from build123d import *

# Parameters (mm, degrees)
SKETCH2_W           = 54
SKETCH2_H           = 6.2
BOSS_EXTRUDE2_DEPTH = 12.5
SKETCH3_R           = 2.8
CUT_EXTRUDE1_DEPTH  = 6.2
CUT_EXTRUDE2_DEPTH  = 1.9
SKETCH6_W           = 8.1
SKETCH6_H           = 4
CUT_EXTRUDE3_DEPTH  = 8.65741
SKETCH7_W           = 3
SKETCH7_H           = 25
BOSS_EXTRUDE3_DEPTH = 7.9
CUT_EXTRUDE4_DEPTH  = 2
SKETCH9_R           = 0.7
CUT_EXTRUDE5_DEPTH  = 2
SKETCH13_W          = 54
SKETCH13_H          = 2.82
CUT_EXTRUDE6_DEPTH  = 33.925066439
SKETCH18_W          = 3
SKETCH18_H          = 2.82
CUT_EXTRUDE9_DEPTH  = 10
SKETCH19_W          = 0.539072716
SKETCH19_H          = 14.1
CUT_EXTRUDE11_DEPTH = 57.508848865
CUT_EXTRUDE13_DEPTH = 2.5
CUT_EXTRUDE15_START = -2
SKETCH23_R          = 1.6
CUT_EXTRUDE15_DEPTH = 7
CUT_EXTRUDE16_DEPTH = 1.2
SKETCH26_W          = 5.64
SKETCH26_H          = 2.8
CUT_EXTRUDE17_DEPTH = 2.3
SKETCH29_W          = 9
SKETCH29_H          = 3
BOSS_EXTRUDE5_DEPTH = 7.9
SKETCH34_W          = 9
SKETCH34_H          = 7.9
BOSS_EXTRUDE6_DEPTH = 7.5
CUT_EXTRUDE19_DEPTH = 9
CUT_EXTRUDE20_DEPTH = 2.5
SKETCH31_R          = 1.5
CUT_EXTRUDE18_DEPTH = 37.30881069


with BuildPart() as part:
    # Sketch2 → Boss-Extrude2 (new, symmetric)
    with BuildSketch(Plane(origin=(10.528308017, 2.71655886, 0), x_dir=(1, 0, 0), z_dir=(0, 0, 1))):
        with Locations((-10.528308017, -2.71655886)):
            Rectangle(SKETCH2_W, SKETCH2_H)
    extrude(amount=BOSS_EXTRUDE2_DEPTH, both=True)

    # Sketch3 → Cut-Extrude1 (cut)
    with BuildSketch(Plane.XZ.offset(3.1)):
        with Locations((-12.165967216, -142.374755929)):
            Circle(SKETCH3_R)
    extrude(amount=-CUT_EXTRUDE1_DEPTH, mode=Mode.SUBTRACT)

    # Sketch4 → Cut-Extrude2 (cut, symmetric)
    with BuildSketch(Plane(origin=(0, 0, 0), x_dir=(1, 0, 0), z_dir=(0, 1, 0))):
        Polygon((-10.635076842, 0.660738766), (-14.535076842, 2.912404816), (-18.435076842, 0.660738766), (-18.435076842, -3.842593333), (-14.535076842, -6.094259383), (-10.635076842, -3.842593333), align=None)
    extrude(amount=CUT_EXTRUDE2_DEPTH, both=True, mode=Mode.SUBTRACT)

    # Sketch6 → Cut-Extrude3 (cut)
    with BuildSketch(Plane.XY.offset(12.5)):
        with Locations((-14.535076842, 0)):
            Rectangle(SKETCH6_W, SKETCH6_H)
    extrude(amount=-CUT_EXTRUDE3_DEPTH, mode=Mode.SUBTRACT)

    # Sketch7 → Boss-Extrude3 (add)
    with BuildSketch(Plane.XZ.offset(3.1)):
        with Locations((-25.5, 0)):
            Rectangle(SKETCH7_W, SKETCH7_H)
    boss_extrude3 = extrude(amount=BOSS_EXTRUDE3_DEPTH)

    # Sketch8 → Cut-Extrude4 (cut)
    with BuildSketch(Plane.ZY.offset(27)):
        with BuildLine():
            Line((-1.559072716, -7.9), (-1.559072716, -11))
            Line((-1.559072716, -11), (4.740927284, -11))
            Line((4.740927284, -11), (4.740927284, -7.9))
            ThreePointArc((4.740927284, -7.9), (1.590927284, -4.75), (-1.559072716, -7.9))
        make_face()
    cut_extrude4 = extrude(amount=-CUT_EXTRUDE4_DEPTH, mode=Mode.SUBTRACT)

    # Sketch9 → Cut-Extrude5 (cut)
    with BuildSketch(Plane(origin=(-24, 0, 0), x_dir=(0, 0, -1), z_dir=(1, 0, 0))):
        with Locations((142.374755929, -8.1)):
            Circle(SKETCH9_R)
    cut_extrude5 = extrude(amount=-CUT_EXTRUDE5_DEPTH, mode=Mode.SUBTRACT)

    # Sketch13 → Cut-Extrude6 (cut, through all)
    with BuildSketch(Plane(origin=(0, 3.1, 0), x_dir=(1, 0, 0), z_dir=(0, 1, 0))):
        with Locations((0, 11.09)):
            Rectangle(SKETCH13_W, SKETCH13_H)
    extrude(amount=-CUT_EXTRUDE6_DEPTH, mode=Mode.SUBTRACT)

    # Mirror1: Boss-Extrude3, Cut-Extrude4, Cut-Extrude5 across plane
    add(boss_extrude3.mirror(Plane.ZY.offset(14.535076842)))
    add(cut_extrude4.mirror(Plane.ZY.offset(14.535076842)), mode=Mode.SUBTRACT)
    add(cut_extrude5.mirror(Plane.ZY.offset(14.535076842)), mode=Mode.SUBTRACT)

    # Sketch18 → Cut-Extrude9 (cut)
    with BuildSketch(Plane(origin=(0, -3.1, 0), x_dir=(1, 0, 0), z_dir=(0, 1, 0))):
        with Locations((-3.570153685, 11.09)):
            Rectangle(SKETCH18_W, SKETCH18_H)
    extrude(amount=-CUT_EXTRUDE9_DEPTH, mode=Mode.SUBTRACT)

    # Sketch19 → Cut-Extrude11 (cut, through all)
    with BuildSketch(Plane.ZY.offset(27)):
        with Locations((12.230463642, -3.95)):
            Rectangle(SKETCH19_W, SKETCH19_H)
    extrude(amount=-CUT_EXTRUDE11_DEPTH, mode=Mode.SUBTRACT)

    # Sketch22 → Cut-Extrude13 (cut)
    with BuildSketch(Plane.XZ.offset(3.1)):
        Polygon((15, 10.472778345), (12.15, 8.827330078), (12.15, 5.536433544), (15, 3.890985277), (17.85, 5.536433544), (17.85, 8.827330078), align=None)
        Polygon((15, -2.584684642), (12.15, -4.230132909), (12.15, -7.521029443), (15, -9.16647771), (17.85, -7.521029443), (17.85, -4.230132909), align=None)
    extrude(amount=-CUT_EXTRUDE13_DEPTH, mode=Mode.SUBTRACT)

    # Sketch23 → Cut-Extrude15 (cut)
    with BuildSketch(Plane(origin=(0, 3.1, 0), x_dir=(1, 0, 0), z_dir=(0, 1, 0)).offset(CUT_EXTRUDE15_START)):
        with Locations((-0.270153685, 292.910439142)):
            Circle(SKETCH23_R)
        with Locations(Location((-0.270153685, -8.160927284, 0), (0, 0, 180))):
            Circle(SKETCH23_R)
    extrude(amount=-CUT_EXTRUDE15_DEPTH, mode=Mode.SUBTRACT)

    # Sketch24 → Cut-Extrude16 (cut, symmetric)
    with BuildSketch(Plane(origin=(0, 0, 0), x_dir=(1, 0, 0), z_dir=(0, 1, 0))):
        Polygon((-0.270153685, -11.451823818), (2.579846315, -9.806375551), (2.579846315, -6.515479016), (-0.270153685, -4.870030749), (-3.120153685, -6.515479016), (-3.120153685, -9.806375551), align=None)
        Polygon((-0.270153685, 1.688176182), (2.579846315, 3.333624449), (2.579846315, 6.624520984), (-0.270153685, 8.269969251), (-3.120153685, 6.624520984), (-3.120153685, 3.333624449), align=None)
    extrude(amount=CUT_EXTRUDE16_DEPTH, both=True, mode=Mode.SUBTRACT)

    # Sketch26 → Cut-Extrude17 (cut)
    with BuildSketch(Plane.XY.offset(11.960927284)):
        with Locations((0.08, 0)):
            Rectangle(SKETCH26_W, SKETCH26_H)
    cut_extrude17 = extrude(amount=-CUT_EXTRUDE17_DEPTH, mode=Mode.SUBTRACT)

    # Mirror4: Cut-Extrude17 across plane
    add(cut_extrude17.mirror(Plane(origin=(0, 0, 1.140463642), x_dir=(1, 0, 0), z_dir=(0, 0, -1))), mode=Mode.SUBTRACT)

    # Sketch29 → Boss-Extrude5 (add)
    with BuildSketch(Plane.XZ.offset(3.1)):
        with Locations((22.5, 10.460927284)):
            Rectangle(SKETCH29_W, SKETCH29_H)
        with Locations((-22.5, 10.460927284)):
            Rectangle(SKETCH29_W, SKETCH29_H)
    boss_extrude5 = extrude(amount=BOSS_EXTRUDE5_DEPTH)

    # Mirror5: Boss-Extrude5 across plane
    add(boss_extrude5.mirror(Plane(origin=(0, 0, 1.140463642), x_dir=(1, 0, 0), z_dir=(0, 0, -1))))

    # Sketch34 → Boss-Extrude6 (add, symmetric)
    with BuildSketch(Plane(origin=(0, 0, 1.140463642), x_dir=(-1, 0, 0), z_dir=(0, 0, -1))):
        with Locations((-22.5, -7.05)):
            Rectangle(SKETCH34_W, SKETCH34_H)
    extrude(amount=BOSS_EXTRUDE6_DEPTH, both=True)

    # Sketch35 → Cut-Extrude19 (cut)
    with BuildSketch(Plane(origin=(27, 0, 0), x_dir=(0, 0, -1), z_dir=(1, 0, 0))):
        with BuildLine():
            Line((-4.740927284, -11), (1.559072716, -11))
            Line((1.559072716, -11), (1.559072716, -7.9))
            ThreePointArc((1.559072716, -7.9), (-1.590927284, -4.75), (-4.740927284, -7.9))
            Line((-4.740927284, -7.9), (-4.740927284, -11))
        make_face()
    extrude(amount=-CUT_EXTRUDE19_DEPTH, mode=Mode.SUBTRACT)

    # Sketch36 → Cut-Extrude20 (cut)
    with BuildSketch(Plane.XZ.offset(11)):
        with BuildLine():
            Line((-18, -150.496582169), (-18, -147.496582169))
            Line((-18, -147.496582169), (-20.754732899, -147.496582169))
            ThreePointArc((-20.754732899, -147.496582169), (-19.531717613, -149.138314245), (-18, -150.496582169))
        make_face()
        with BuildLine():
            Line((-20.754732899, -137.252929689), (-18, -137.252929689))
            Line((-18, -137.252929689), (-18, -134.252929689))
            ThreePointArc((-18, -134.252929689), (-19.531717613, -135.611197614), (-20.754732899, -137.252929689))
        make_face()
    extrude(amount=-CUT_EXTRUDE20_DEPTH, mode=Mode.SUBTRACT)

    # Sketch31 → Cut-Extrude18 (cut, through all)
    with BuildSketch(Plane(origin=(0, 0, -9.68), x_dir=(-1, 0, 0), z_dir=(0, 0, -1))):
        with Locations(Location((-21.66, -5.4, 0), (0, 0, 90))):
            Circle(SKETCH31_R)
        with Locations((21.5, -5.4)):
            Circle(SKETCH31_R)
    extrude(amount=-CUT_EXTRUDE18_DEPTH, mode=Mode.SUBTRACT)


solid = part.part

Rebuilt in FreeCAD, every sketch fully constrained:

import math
import FreeCAD as App
import Part
import Sketcher

V = App.Vector
Q = App.Units.Quantity


def add_polygon(sketch, points):
    """Adds a closed chain of lines whose ends are joined by coincident constraints."""
    first, n = sketch.GeometryCount, len(points)
    for a, b in zip(points, points[1:] + points[:1]):
        sketch.addGeometry(Part.LineSegment(App.Vector(*a, 0), App.Vector(*b, 0)), False)
    for i in range(n):
        sketch.addConstraint(Sketcher.Constraint("Coincident", first + i, 2, first + (i + 1) % n, 1))

doc = App.newDocument("Part")
body = doc.addObject("PartDesign::Body", "Body")

# Sketch on XY plane
sketch1 = body.newObject("Sketcher::SketchObject", "Sketch")
sketch1.AttachmentSupport = (doc.getObject("XY_Plane"), [""])
sketch1.MapMode = "FlatFace"
add_polygon(sketch1, [(-27, 3), (-27, -3), (27, -3), (27, 3)])  # lines 0-3
sketch1.addConstraint([
    Sketcher.Constraint("Vertical", 0),
    Sketcher.Constraint("Horizontal", 1),
    Sketcher.Constraint("Vertical", 2),
    Sketcher.Constraint("Horizontal", 3),
    Sketcher.Constraint("Symmetric", 0, 2, 2, 2, -1, 1),
    Sketcher.Constraint("DistanceX", 1, 1, 1, 2, 54.0),
    Sketcher.Constraint("DistanceY", 0, 2, 0, 1, 6.2),
])
pad1 = body.newObject("PartDesign::Pad", "Pad")
pad1.Profile = sketch1
pad1.Length = 25
pad1.Midplane = True

# Sketch on XZ plane
sketch2 = body.newObject("Sketcher::SketchObject", "Sketch001")
sketch2.AttachmentSupport = (doc.getObject("XZ_Plane"), [""])
sketch2.MapMode = "FlatFace"
sketch2.AttachmentOffset = App.Placement(V(0, 0, 3.1), App.Rotation())
sketch2.addGeometry(Part.Circle(V(-12.2, -142.4, 0), V(0, 0, 1), 2.8), False)
sketch2.addConstraint([
    Sketcher.Constraint("Diameter", 0, 5.6),
    Sketcher.Constraint("DistanceX", 0, 3, -1, 1, 12.165967),
    Sketcher.Constraint("DistanceY", 0, 3, -1, 1, 142.374756),
])
pocket1 = body.newObject("PartDesign::Pocket", "Pocket")
pocket1.Profile = sketch2
pocket1.Length = 6.2

# Sketch on XZ plane
sketch3 = body.newObject("Sketcher::SketchObject", "Sketch002")
sketch3.AttachmentSupport = (doc.getObject("XZ_Plane"), [""])
sketch3.MapMode = "FlatFace"
add_polygon(sketch3, [(-10.6, -0.7), (-14.5, -2.9), (-18.4, -0.7), (-18.4, 3.8), (-14.5, 6.1), (-10.6, 3.8)])  # lines 0-5
sketch3.addConstraint([
    Sketcher.Constraint("Vertical", 2),
    Sketcher.Constraint("Vertical", 5),
    Sketcher.Constraint("Parallel", 0, 3),
    Sketcher.Constraint("Parallel", 1, 4),
    Sketcher.Constraint("Horizontal", 2, 2, 4, 2),
    Sketcher.Constraint("Horizontal", 1, 2, 5, 2),
    Sketcher.Constraint("Vertical", 0, 2, 3, 2),
    Sketcher.Constraint("Angle", 0, Q("-150 deg")),
    Sketcher.Constraint("DistanceX", 1, 2, 0, 2, 3.9),
    Sketcher.Constraint("DistanceY", 0, 2, 2, 2, 6.754998),
    Sketcher.Constraint("DistanceY", 1, 2, -1, 1, 0.660739),
    Sketcher.Constraint("DistanceX", 0, 2, -1, 1, 14.535077),
])
pocket2 = body.newObject("PartDesign::Pocket", "Pocket001")
pocket2.Profile = sketch3
pocket2.Length = 3.8
pocket2.Midplane = True

# Sketch on XY plane
sketch4 = body.newObject("Sketcher::SketchObject", "Sketch003")
sketch4.AttachmentSupport = (doc.getObject("XY_Plane"), [""])
sketch4.MapMode = "FlatFace"
sketch4.AttachmentOffset = App.Placement(V(0, 0, 12.5), App.Rotation())
add_polygon(sketch4, [(-18.6, 2), (-18.6, -2), (-10.5, -2), (-10.5, 2)])  # lines 0-3
sketch4.addConstraint([
    Sketcher.Constraint("Vertical", 0),
    Sketcher.Constraint("Horizontal", 1),
    Sketcher.Constraint("Vertical", 2),
    Sketcher.Constraint("Horizontal", 3),
    Sketcher.Constraint("DistanceY", 0, 2, 0, 1, 4.0),
    Sketcher.Constraint("DistanceX", 1, 1, 1, 2, 8.1),
    Sketcher.Constraint("DistanceY", 0, 2, -1, 1, 2.0),
    Sketcher.Constraint("DistanceX", 0, 2, -1, 1, 18.585077),
])
pocket3 = body.newObject("PartDesign::Pocket", "Pocket002")
pocket3.Profile = sketch4
pocket3.Length = 8.65741

# Sketch on XZ plane
sketch5 = body.newObject("Sketcher::SketchObject", "Sketch004")
sketch5.AttachmentSupport = (doc.getObject("XZ_Plane"), [""])
sketch5.MapMode = "FlatFace"
sketch5.AttachmentOffset = App.Placement(V(0, 0, 3.1), App.Rotation())
add_polygon(sketch5, [(-27, 12.5), (-27, -12.5), (-24, -12.5), (-24, 12.5)])  # lines 0-3
sketch5.addConstraint([
    Sketcher.Constraint("Vertical", 0),
    Sketcher.Constraint("Horizontal", 1),
    Sketcher.Constraint("Vertical", 2),
    Sketcher.Constraint("Horizontal", 3),
    Sketcher.Constraint("DistanceX", 1, 1, 1, 2, 3.0),
    Sketcher.Constraint("DistanceY", 0, 2, 0, 1, 25.0),
    Sketcher.Constraint("DistanceX", 0, 2, -1, 1, 27.0),
    Sketcher.Constraint("DistanceY", 0, 2, -1, 1, 12.5),
])
pad2 = body.newObject("PartDesign::Pad", "Pad001")
pad2.Profile = sketch5
pad2.Length = 7.9

# Sketch on YZ plane
sketch6 = body.newObject("Sketcher::SketchObject", "Sketch005")
sketch6.AttachmentSupport = (doc.getObject("YZ_Plane"), [""])
sketch6.MapMode = "FlatFace"
sketch6.AttachmentOffset = App.Placement(V(0, 0, -27), App.Rotation())
sketch6.addGeometry([
    Part.LineSegment(V(-7.9, -1.6, 0), V(-11, -1.6, 0)),
    Part.LineSegment(V(-11, -1.6, 0), V(-11, 4.7, 0)),
    Part.LineSegment(V(-11, 4.7, 0), V(-7.9, 4.7, 0)),
    Part.ArcOfCircle(Part.Circle(V(-7.9, 1.6, 0), V(0, 0, 1), 3.1), math.radians(-90), math.radians(90)),
], False)
sketch6.addConstraint([
    Sketcher.Constraint("Coincident", 0, 2, 1, 1),
    Sketcher.Constraint("Coincident", 1, 2, 2, 1),
    Sketcher.Constraint("Tangent", 2, 2, 3, 2),
    Sketcher.Constraint("Tangent", 3, 1, 0, 1),
    Sketcher.Constraint("Horizontal", 0),
    Sketcher.Constraint("Vertical", 1),
    Sketcher.Constraint("Horizontal", 2),
    Sketcher.Constraint("Radius", 3, 3.15),
    Sketcher.Constraint("DistanceX", 0, 2, 0, 1, 3.1),
    Sketcher.Constraint("DistanceX", 0, 2, -1, 1, 11.0),
    Sketcher.Constraint("DistanceY", -1, 1, 3, 3, 1.590927),
])
pocket4 = body.newObject("PartDesign::Pocket", "Pocket003")
pocket4.Profile = sketch6
pocket4.Length = 2
pocket4.Reversed = True

# Sketch on YZ plane
sketch7 = body.newObject("Sketcher::SketchObject", "Sketch006")
sketch7.AttachmentSupport = (doc.getObject("YZ_Plane"), [""])
sketch7.MapMode = "FlatFace"
sketch7.AttachmentOffset = App.Placement(V(0, 0, -24), App.Rotation())
sketch7.addGeometry(Part.Circle(V(-8.1, -142.4, 0), V(0, 0, 1), 0.7), False)
sketch7.addConstraint([
    Sketcher.Constraint("Diameter", 0, 1.4),
    Sketcher.Constraint("DistanceX", 0, 3, -1, 1, 8.1),
    Sketcher.Constraint("DistanceY", 0, 3, -1, 1, 142.374756),
])
pocket5 = body.newObject("PartDesign::Pocket", "Pocket004")
pocket5.Profile = sketch7
pocket5.Length = 2

# Sketch on XZ plane
sketch8 = body.newObject("Sketcher::SketchObject", "Sketch007")
sketch8.AttachmentSupport = (doc.getObject("XZ_Plane"), [""])
sketch8.MapMode = "FlatFace"
sketch8.AttachmentOffset = App.Placement(V(0, 0, -3.1), App.Rotation())
add_polygon(sketch8, [(-27, -12.5), (-27, -9.7), (27, -9.7), (27, -12.5)])  # lines 0-3
sketch8.addConstraint([
    Sketcher.Constraint("Vertical", 0),
    Sketcher.Constraint("Horizontal", 1),
    Sketcher.Constraint("Vertical", 2),
    Sketcher.Constraint("Horizontal", 3),
    Sketcher.Constraint("DistanceX", 1, 1, 1, 2, 54.0),
    Sketcher.Constraint("DistanceX", 0, 2, -1, 1, 27.0),
    Sketcher.Constraint("DistanceY", 0, 1, 0, 2, 2.82),
    Sketcher.Constraint("DistanceY", 2, 2, -1, 1, 12.5),
])
pocket6 = body.newObject("PartDesign::Pocket", "Pocket005")
pocket6.Profile = sketch8
pocket6.Type = "ThroughAll"
pocket6.Reversed = True
doc.recompute()

datumplane = body.newObject("PartDesign::Plane", "DatumPlane")
datumplane.AttachmentSupport = (doc.getObject("YZ_Plane"), [""])
datumplane.MapMode = "FlatFace"
datumplane.AttachmentOffset = App.Placement(V(0, 0, -14.535077), App.Rotation())
mirrored = body.newObject("PartDesign::Mirrored", "Mirrored")
mirrored.Originals = [pad2, pocket4, pocket5]
mirrored.MirrorPlane = (datumplane, [""])
body.Tip = mirrored

# Sketch on XZ plane
sketch9 = body.newObject("Sketcher::SketchObject", "Sketch008")
sketch9.AttachmentSupport = (doc.getObject("XZ_Plane"), [""])
sketch9.MapMode = "FlatFace"
sketch9.AttachmentOffset = App.Placement(V(0, 0, 3.1), App.Rotation())
add_polygon(sketch9, [(-5.1, -12.5), (-5.1, -9.7), (-2.1, -9.7), (-2.1, -12.5)])  # lines 0-3
sketch9.addConstraint([
    Sketcher.Constraint("Vertical", 0),
    Sketcher.Constraint("Horizontal", 1),
    Sketcher.Constraint("Vertical", 2),
    Sketcher.Constraint("Horizontal", 3),
    Sketcher.Constraint("DistanceX", 1, 1, 1, 2, 3.0),
    Sketcher.Constraint("DistanceY", 0, 1, 0, 2, 2.82),
    Sketcher.Constraint("DistanceY", 2, 2, -1, 1, 12.5),
    Sketcher.Constraint("DistanceX", 0, 2, -1, 1, 5.070154),
])
pocket7 = body.newObject("PartDesign::Pocket", "Pocket006")
pocket7.Profile = sketch9
pocket7.Length = 10
pocket7.Reversed = True

# Sketch on YZ plane
sketch10 = body.newObject("Sketcher::SketchObject", "Sketch009")
sketch10.AttachmentSupport = (doc.getObject("YZ_Plane"), [""])
sketch10.MapMode = "FlatFace"
sketch10.AttachmentOffset = App.Placement(V(0, 0, -27), App.Rotation())
add_polygon(sketch10, [(3.1, 12), (-11, 12), (-11, 12.5), (3.1, 12.5)])  # lines 0-3
sketch10.addConstraint([
    Sketcher.Constraint("Horizontal", 0),
    Sketcher.Constraint("Vertical", 1),
    Sketcher.Constraint("Horizontal", 2),
    Sketcher.Constraint("Vertical", 3),
    Sketcher.Constraint("DistanceX", 0, 2, 0, 1, 14.1),
    Sketcher.Constraint("DistanceX", 0, 2, -1, 1, 11.0),
    Sketcher.Constraint("DistanceY", -1, 1, 1, 2, 12.5),
    Sketcher.Constraint("DistanceY", 1, 1, 1, 2, 0.539073),
])
pocket8 = body.newObject("PartDesign::Pocket", "Pocket007")
pocket8.Profile = sketch10
pocket8.Type = "ThroughAll"
pocket8.Reversed = True

# Sketch on XZ plane
sketch11 = body.newObject("Sketcher::SketchObject", "Sketch010")
sketch11.AttachmentSupport = (doc.getObject("XZ_Plane"), [""])
sketch11.MapMode = "FlatFace"
sketch11.AttachmentOffset = App.Placement(V(0, 0, 3.1), App.Rotation())
add_polygon(sketch11, [(15, 10.5), (12.2, 8.8), (12.2, 5.5), (15, 3.9), (17.9, 5.5), (17.9, 8.8)])  # lines 0-5
add_polygon(sketch11, [(15, -2.6), (12.2, -4.2), (12.2, -7.5), (15, -9.2), (17.9, -7.5), (17.9, -4.2)])  # lines 6-11
sketch11.addConstraint([
    Sketcher.Constraint("Vertical", 1),
    Sketcher.Constraint("Vertical", 4),
    Sketcher.Constraint("Vertical", 7),
    Sketcher.Constraint("Vertical", 10),
    Sketcher.Constraint("Parallel", 0, 3),
    Sketcher.Constraint("Parallel", 2, 5),
    Sketcher.Constraint("Parallel", 3, 6),
    Sketcher.Constraint("Parallel", 5, 8),
    Sketcher.Constraint("Parallel", 6, 9),
    Sketcher.Constraint("Parallel", 8, 11),
    Sketcher.Constraint("Horizontal", 1, 2, 3, 2),
    Sketcher.Constraint("Horizontal", 0, 2, 4, 2),
    Sketcher.Constraint("Horizontal", 7, 2, 9, 2),
    Sketcher.Constraint("Horizontal", 6, 2, 10, 2),
    Sketcher.Constraint("Vertical", 2, 2, 5, 2),
    Sketcher.Constraint("Vertical", 1, 2, 6, 2),
    Sketcher.Constraint("Vertical", 5, 2, 8, 2),
    Sketcher.Constraint("Equal", 4, 7),
    Sketcher.Constraint("Angle", 0, Q("-150 deg")),
    Sketcher.Constraint("DistanceX", -1, 1, 2, 2, 15.0),
    Sketcher.Constraint("DistanceX", 1, 2, 3, 2, 5.7),
    Sketcher.Constraint("DistanceY", 1, 2, 1, 1, 3.290897),
    Sketcher.Constraint("DistanceY", -1, 1, 0, 2, 8.82733),
    Sketcher.Constraint("DistanceY", 7, 2, -1, 1, 7.521029),
])
pocket9 = body.newObject("PartDesign::Pocket", "Pocket008")
pocket9.Profile = sketch11
pocket9.Length = 2.5

# Sketch on XZ plane
sketch12 = body.newObject("Sketcher::SketchObject", "Sketch011")
sketch12.AttachmentSupport = (doc.getObject("XZ_Plane"), [""])
sketch12.MapMode = "FlatFace"
sketch12.AttachmentOffset = App.Placement(V(0, 0, -1.1), App.Rotation())
sketch12.addGeometry([
    Part.Circle(V(-0.3, -292.9, 0), V(0, 0, 1), 1.6),
    Part.Circle(V(-0.3, 8.2, 0), V(0, 0, 1), 1.6),
], False)
sketch12.addConstraint([
    Sketcher.Constraint("Equal", 0, 1),
    Sketcher.Constraint("Vertical", 0, 3, 1, 3),
    Sketcher.Constraint("Diameter", 0, 3.2),
    Sketcher.Constraint("DistanceY", 0, 3, -1, 1, 292.910439),
    Sketcher.Constraint("DistanceX", 0, 3, -1, 1, 0.270154),
    Sketcher.Constraint("DistanceY", -1, 1, 1, 3, 8.160927),
])
pocket10 = body.newObject("PartDesign::Pocket", "Pocket009")
pocket10.Profile = sketch12
pocket10.Length = 7
pocket10.Reversed = True

# Sketch on XZ plane
sketch13 = body.newObject("Sketcher::SketchObject", "Sketch012")
sketch13.AttachmentSupport = (doc.getObject("XZ_Plane"), [""])
sketch13.MapMode = "FlatFace"
add_polygon(sketch13, [(-0.3, 11.5), (2.6, 9.8), (2.6, 6.5), (-0.3, 4.9), (-3.1, 6.5), (-3.1, 9.8)])  # lines 0-5
add_polygon(sketch13, [(-0.3, -1.7), (2.6, -3.3), (2.6, -6.6), (-0.3, -8.3), (-3.1, -6.6), (-3.1, -3.3)])  # lines 6-11
sketch13.addConstraint([
    Sketcher.Constraint("Vertical", 1),
    Sketcher.Constraint("Vertical", 4),
    Sketcher.Constraint("Vertical", 7),
    Sketcher.Constraint("Vertical", 10),
    Sketcher.Constraint("Parallel", 0, 3),
    Sketcher.Constraint("Parallel", 2, 5),
    Sketcher.Constraint("Parallel", 3, 6),
    Sketcher.Constraint("Parallel", 5, 8),
    Sketcher.Constraint("Parallel", 6, 9),
    Sketcher.Constraint("Parallel", 8, 11),
    Sketcher.Constraint("Horizontal", 1, 2, 3, 2),
    Sketcher.Constraint("Horizontal", 0, 2, 4, 2),
    Sketcher.Constraint("Horizontal", 7, 2, 9, 2),
    Sketcher.Constraint("Horizontal", 6, 2, 10, 2),
    Sketcher.Constraint("Vertical", 2, 2, 5, 2),
    Sketcher.Constraint("Vertical", 1, 2, 6, 2),
    Sketcher.Constraint("Vertical", 5, 2, 8, 2),
    Sketcher.Constraint("Equal", 4, 7),
    Sketcher.Constraint("Angle", 0, Q("-30 deg")),
    Sketcher.Constraint("DistanceX", 3, 2, 1, 2, 5.7),
    Sketcher.Constraint("DistanceY", 6, 2, 0, 2, 13.14),
    Sketcher.Constraint("DistanceY", 1, 2, 1, 1, 3.290897),
    Sketcher.Constraint("DistanceY", -1, 1, 1, 2, 6.515479),
    Sketcher.Constraint("DistanceX", -1, 1, 0, 2, 2.579846),
])
pocket11 = body.newObject("PartDesign::Pocket", "Pocket010")
pocket11.Profile = sketch13
pocket11.Length = 2.4
pocket11.Midplane = True

# Sketch on XY plane
sketch14 = body.newObject("Sketcher::SketchObject", "Sketch013")
sketch14.AttachmentSupport = (doc.getObject("XY_Plane"), [""])
sketch14.MapMode = "FlatFace"
sketch14.AttachmentOffset = App.Placement(V(0, 0, 11.960927), App.Rotation())
add_polygon(sketch14, [(-2.7, 1.4), (-2.7, -1.4), (2.9, -1.4), (2.9, 1.4)])  # lines 0-3
sketch14.addConstraint([
    Sketcher.Constraint("Vertical", 0),
    Sketcher.Constraint("Horizontal", 1),
    Sketcher.Constraint("Vertical", 2),
    Sketcher.Constraint("Horizontal", 3),
    Sketcher.Constraint("DistanceY", 0, 2, 0, 1, 2.8),
    Sketcher.Constraint("DistanceX", 1, 1, 1, 2, 5.64),
    Sketcher.Constraint("DistanceY", 0, 2, -1, 1, 1.4),
    Sketcher.Constraint("DistanceX", -1, 1, 1, 2, 2.9),
])
pocket12 = body.newObject("PartDesign::Pocket", "Pocket011")
pocket12.Profile = sketch14
pocket12.Length = 2.3
doc.recompute()

datumplane2 = body.newObject("PartDesign::Plane", "DatumPlane001")
datumplane2.AttachmentSupport = (doc.getObject("XY_Plane"), [""])
datumplane2.MapMode = "FlatFace"
datumplane2.AttachmentOffset = App.Placement(V(0, 0, 1.140464), App.Rotation())
mirrored2 = body.newObject("PartDesign::Mirrored", "Mirrored001")
mirrored2.Originals = [pocket12]
mirrored2.MirrorPlane = (datumplane2, [""])
body.Tip = mirrored2

# Sketch on XZ plane
sketch15 = body.newObject("Sketcher::SketchObject", "Sketch014")
sketch15.AttachmentSupport = (doc.getObject("XZ_Plane"), [""])
sketch15.MapMode = "FlatFace"
sketch15.AttachmentOffset = App.Placement(V(0, 0, 3.1), App.Rotation())
add_polygon(sketch15, [(18, 12), (18, 9), (27, 9), (27, 12)])  # lines 0-3
add_polygon(sketch15, [(-27, 12), (-27, 9), (-18, 9), (-18, 12)])  # lines 4-7
sketch15.addConstraint([
    Sketcher.Constraint("Vertical", 0),
    Sketcher.Constraint("Horizontal", 1),
    Sketcher.Constraint("Vertical", 2),
    Sketcher.Constraint("Horizontal", 3),
    Sketcher.Constraint("Vertical", 4),
    Sketcher.Constraint("Horizontal", 5),
    Sketcher.Constraint("Vertical", 6),
    Sketcher.Constraint("Horizontal", 7),
    Sketcher.Constraint("Symmetric", 1, 2, 4, 2, -2),
    Sketcher.Constraint("Symmetric", 3, 2, 6, 2, -2),
    Sketcher.Constraint("DistanceX", 1, 1, 1, 2, 9.0),
    Sketcher.Constraint("DistanceY", 0, 2, 0, 1, 3.0),
    Sketcher.Constraint("DistanceX", -1, 1, 0, 2, 18.0),
    Sketcher.Constraint("DistanceY", -1, 1, 0, 2, 8.960927),
])
pad3 = body.newObject("PartDesign::Pad", "Pad002")
pad3.Profile = sketch15
pad3.Length = 7.9
doc.recompute()

datumplane3 = body.newObject("PartDesign::Plane", "DatumPlane002")
datumplane3.AttachmentSupport = (doc.getObject("XY_Plane"), [""])
datumplane3.MapMode = "FlatFace"
datumplane3.AttachmentOffset = App.Placement(V(0, 0, 1.140464), App.Rotation())
mirrored3 = body.newObject("PartDesign::Mirrored", "Mirrored002")
mirrored3.Originals = [pad3]
mirrored3.MirrorPlane = (datumplane3, [""])
body.Tip = mirrored3

# Sketch on XY plane
sketch16 = body.newObject("Sketcher::SketchObject", "Sketch015")
sketch16.AttachmentSupport = (doc.getObject("XY_Plane"), [""])
sketch16.MapMode = "FlatFace"
sketch16.AttachmentOffset = App.Placement(V(0, 0, 1.140464), App.Rotation())
add_polygon(sketch16, [(27, -3), (27, -11), (18, -11), (18, -3)])  # lines 0-3
sketch16.addConstraint([
    Sketcher.Constraint("Vertical", 0),
    Sketcher.Constraint("Horizontal", 1),
    Sketcher.Constraint("Vertical", 2),
    Sketcher.Constraint("Horizontal", 3),
    Sketcher.Constraint("DistanceX", 1, 2, 1, 1, 9.0),
    Sketcher.Constraint("DistanceY", 0, 2, 0, 1, 7.9),
    Sketcher.Constraint("DistanceX", -1, 1, 0, 2, 27.0),
    Sketcher.Constraint("DistanceY", 0, 2, -1, 1, 11.0),
])
pad4 = body.newObject("PartDesign::Pad", "Pad003")
pad4.Profile = sketch16
pad4.Length = 15
pad4.Midplane = True

# Sketch on YZ plane
sketch17 = body.newObject("Sketcher::SketchObject", "Sketch016")
sketch17.AttachmentSupport = (doc.getObject("YZ_Plane"), [""])
sketch17.MapMode = "FlatFace"
sketch17.AttachmentOffset = App.Placement(V(0, 0, 27), App.Rotation())
sketch17.addGeometry([
    Part.LineSegment(V(-11, 4.7, 0), V(-11, -1.6, 0)),
    Part.LineSegment(V(-11, -1.6, 0), V(-7.9, -1.6, 0)),
    Part.ArcOfCircle(Part.Circle(V(-7.9, 1.6, 0), V(0, 0, 1), 3.1), math.radians(-90), math.radians(90)),
    Part.LineSegment(V(-7.9, 4.7, 0), V(-11, 4.7, 0)),
], False)
sketch17.addConstraint([
    Sketcher.Constraint("Coincident", 0, 2, 1, 1),
    Sketcher.Constraint("Tangent", 1, 2, 2, 1),
    Sketcher.Constraint("Tangent", 2, 2, 3, 1),
    Sketcher.Constraint("Coincident", 3, 2, 0, 1),
    Sketcher.Constraint("Vertical", 0),
    Sketcher.Constraint("Horizontal", 1),
    Sketcher.Constraint("Horizontal", 3),
    Sketcher.Constraint("Radius", 2, 3.15),
    Sketcher.Constraint("DistanceX", 1, 1, 1, 2, 3.1),
    Sketcher.Constraint("DistanceX", 0, 2, -1, 1, 11.0),
    Sketcher.Constraint("DistanceY", -1, 1, 2, 3, 1.590927),
])
pocket13 = body.newObject("PartDesign::Pocket", "Pocket012")
pocket13.Profile = sketch17
pocket13.Length = 9

# Sketch on XZ plane
sketch18 = body.newObject("Sketcher::SketchObject", "Sketch017")
sketch18.AttachmentSupport = (doc.getObject("XZ_Plane"), [""])
sketch18.MapMode = "FlatFace"
sketch18.AttachmentOffset = App.Placement(V(0, 0, 11), App.Rotation())
sketch18.addGeometry([
    Part.LineSegment(V(-18, -150.5, 0), V(-18, -147.5, 0)),  # 0
    Part.LineSegment(V(-18, -147.5, 0), V(-20.8, -147.5, 0)),  # 1
    Part.ArcOfCircle(Part.Circle(V(-12.2, -142.4, 0), V(0, 0, 1), 10), math.radians(-149), math.radians(-126)),  # 2
    Part.LineSegment(V(-20.8, -137.3, 0), V(-18, -137.3, 0)),  # 3
    Part.LineSegment(V(-18, -137.3, 0), V(-18, -134.3, 0)),  # 4
    Part.ArcOfCircle(Part.Circle(V(-12.2, -142.4, 0), V(0, 0, 1), 10), math.radians(126), math.radians(149)),  # 5
], False)
sketch18.addConstraint([
    Sketcher.Constraint("Coincident", 0, 2, 1, 1),
    Sketcher.Constraint("Coincident", 1, 2, 2, 1),
    Sketcher.Constraint("Coincident", 2, 2, 0, 1),
    Sketcher.Constraint("Coincident", 3, 2, 4, 1),
    Sketcher.Constraint("Coincident", 4, 2, 5, 1),
    Sketcher.Constraint("Coincident", 5, 2, 3, 1),
    Sketcher.Constraint("Vertical", 0),
    Sketcher.Constraint("Horizontal", 1),
    Sketcher.Constraint("Horizontal", 3),
    Sketcher.Constraint("Vertical", 4),
    Sketcher.Constraint("Coincident", 5, 3, 2, 3),
    Sketcher.Constraint("Equal", 2, 5),
    Sketcher.Constraint("Vertical", 2, 2, 3, 2),
    Sketcher.Constraint("Vertical", 1, 2, 5, 2),
    Sketcher.Constraint("Radius", 2, 10.0),
    Sketcher.Constraint("DistanceY", 0, 1, 0, 2, 3.0),
    Sketcher.Constraint("DistanceX", 0, 2, -1, 1, 18.0),
    Sketcher.Constraint("DistanceX", 1, 2, 1, 1, 2.754733),
    Sketcher.Constraint("DistanceY", 3, 2, -1, 1, 137.25293),
])
pocket14 = body.newObject("PartDesign::Pocket", "Pocket013")
pocket14.Profile = sketch18
pocket14.Length = 2.5

# Sketch on XY plane
sketch19 = body.newObject("Sketcher::SketchObject", "Sketch018")
sketch19.AttachmentSupport = (doc.getObject("XY_Plane"), [""])
sketch19.MapMode = "FlatFace"
sketch19.AttachmentOffset = App.Placement(V(0, 0, -9.68), App.Rotation())
sketch19.addGeometry([
    Part.Circle(V(21.7, -5.4, 0), V(0, 0, 1), 1.5),
    Part.Circle(V(-21.5, -5.4, 0), V(0, 0, 1), 1.5),
], False)
sketch19.addConstraint([
    Sketcher.Constraint("Equal", 0, 1),
    Sketcher.Constraint("Horizontal", 0, 3, 1, 3),
    Sketcher.Constraint("Diameter", 0, 3.0),
    Sketcher.Constraint("DistanceY", 0, 3, -1, 1, 5.4),
    Sketcher.Constraint("DistanceX", 1, 3, -1, 1, 21.5),
    Sketcher.Constraint("DistanceX", -1, 1, 0, 3, 21.66),
])
pocket15 = body.newObject("PartDesign::Pocket", "Pocket014")
pocket15.Profile = sketch19
pocket15.Type = "ThroughAll"
pocket15.Reversed = True

doc.recompute()
